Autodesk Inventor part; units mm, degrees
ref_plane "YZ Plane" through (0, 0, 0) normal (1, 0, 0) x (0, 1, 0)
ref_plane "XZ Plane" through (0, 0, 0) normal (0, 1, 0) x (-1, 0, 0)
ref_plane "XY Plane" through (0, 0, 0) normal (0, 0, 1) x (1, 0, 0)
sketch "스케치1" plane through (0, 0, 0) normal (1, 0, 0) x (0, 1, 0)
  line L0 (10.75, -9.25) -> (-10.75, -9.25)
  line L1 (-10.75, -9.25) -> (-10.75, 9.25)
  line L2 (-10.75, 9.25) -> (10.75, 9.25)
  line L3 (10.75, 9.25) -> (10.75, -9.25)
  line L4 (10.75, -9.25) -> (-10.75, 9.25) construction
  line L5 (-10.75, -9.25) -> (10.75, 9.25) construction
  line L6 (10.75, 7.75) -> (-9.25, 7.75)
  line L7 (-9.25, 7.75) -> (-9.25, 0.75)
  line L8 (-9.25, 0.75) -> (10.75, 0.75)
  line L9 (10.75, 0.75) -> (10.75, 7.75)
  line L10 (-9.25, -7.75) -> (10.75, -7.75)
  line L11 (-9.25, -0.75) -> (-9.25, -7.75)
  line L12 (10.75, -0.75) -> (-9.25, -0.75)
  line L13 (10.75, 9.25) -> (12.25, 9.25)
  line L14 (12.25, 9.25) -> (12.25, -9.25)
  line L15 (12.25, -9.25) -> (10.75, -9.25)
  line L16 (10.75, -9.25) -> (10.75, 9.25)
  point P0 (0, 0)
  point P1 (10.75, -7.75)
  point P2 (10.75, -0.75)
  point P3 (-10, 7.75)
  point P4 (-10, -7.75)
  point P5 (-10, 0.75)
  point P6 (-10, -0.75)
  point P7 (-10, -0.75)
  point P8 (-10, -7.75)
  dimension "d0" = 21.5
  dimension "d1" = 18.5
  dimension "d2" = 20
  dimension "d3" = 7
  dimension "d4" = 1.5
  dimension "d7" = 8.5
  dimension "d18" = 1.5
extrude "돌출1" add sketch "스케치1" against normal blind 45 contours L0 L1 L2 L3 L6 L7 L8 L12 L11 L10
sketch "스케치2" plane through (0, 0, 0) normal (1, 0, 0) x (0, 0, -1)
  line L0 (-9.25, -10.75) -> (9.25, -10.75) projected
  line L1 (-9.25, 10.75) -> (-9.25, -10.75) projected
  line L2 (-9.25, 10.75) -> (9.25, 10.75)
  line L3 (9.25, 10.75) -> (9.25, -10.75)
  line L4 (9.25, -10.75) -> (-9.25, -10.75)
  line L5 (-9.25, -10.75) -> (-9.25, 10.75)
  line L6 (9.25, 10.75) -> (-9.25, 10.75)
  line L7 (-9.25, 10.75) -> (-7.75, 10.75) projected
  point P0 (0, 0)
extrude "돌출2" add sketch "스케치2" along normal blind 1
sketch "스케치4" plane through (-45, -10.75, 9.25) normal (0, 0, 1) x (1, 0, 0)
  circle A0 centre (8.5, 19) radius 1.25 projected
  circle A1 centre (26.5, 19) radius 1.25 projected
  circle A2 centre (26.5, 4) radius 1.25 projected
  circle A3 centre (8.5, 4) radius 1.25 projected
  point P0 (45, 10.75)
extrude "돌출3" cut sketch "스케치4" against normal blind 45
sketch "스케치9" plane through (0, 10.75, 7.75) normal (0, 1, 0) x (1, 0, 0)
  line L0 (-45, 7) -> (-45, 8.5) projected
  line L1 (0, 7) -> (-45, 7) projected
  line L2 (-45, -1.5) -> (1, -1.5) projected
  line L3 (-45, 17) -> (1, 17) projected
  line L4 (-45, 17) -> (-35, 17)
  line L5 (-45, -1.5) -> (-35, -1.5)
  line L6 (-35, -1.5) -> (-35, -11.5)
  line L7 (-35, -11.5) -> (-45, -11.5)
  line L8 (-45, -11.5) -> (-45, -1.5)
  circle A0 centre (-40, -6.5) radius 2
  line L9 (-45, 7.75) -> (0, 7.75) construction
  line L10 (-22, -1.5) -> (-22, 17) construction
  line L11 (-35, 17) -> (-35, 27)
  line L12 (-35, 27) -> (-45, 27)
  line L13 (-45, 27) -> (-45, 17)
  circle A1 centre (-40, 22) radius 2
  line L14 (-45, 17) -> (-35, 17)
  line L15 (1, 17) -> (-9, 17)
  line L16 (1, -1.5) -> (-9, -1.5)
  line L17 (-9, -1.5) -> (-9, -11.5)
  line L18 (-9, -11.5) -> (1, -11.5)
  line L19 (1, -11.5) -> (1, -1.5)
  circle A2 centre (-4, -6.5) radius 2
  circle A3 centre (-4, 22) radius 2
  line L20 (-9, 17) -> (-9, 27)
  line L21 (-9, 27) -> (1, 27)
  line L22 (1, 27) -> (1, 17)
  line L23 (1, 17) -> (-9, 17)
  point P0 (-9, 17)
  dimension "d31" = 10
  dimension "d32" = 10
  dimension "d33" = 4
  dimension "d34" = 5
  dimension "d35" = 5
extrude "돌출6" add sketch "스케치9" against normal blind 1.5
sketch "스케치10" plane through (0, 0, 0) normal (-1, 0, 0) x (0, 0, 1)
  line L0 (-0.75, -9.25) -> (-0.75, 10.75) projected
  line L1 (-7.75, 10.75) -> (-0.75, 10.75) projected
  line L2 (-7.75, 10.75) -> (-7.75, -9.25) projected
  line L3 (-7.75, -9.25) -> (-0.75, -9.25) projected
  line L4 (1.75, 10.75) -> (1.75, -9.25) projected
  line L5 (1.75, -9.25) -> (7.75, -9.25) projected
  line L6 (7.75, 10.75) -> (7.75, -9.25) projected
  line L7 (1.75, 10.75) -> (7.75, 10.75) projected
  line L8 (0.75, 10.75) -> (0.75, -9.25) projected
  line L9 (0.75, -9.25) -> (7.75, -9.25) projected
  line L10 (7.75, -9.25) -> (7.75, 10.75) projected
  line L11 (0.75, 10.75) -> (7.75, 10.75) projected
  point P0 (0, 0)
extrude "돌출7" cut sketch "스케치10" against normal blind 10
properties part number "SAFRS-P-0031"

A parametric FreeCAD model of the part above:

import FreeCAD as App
import Part
import Sketcher
from FreeCAD import Vector

doc = App.newDocument("Part")
params = doc.addObject("Spreadsheet::Sheet", "Params")
for row, (alias, value) in enumerate([
    ("sketch1_width", "20 mm"),
    ("sketch1_height", "7 mm"),
    ("sketch1_width2", "21.5 mm"),
    ("sketch1_height2", "1.5 mm"),
    ("pad1_length", "45 mm"),
    ("sketch2_width", "21.5 mm"),
    ("sketch2_height", "18.5 mm"),
    ("pad2_length", "1 mm"),
    ("sketch3_diameter", "2.5 mm"),
    ("pocket1_length", "45 mm"),
    ("sketch4_diameter", "4 mm"),
    ("sketch4_width", "10 mm"),
    ("pad3_length", "1.5 mm"),
    ("sketch5_width", "20 mm"),
    ("sketch5_height", "7 mm"),
    ("pocket2_length", "10 mm"),
], start=1):
    params.set(f"A{row}", alias)
    params.set(f"B{row}", "=" + value)
    params.setAlias(f"B{row}", alias)

body = doc.addObject("PartDesign::Body", "Body")

sketch1 = body.newObject("Sketcher::SketchObject", "Sketch")
sketch1.AttachmentSupport = (doc.getObject("YZ_Plane"), [""])
sketch1.MapMode = "FlatFace"
sketch1.addGeometry([
    Part.LineSegment(Vector(-10.8, -9.2, 0), Vector(10.8, -9.2, 0)),
    Part.LineSegment(Vector(10.8, -9.2, 0), Vector(10.8, -7.8, 0)),
    Part.LineSegment(Vector(10.8, -7.8, 0), Vector(-9.2, -7.8, 0)),
    Part.LineSegment(Vector(-9.2, -7.8, 0), Vector(-9.2, -0.8, 0)),
    Part.LineSegment(Vector(-9.2, -0.8, 0), Vector(10.8, -0.8, 0)),
    Part.LineSegment(Vector(10.8, -0.8, 0), Vector(10.8, 0.8, 0)),
    Part.LineSegment(Vector(10.8, 0.8, 0), Vector(-9.2, 0.8, 0)),
    Part.LineSegment(Vector(-9.2, 0.8, 0), Vector(-9.2, 7.8, 0)),
    Part.LineSegment(Vector(-9.2, 7.8, 0), Vector(10.8, 7.8, 0)),
    Part.LineSegment(Vector(10.8, 7.8, 0), Vector(10.8, 9.2, 0)),
    Part.LineSegment(Vector(10.8, 9.2, 0), Vector(-10.8, 9.2, 0)),
    Part.LineSegment(Vector(-10.8, 9.2, 0), Vector(-10.8, -9.2, 0)),
], False)
sketch1.addConstraint([
    Sketcher.Constraint("Coincident", 0, 2, 1, 1),
    Sketcher.Constraint("Coincident", 1, 2, 2, 1),
    Sketcher.Constraint("Coincident", 2, 2, 3, 1),
    Sketcher.Constraint("Coincident", 3, 2, 4, 1),
    Sketcher.Constraint("Coincident", 4, 2, 5, 1),
    Sketcher.Constraint("Coincident", 5, 2, 6, 1),
    Sketcher.Constraint("Coincident", 6, 2, 7, 1),
    Sketcher.Constraint("Coincident", 7, 2, 8, 1),
    Sketcher.Constraint("Coincident", 8, 2, 9, 1),
    Sketcher.Constraint("Coincident", 9, 2, 10, 1),
    Sketcher.Constraint("Coincident", 10, 2, 11, 1),
    Sketcher.Constraint("Coincident", 11, 2, 0, 1),
    Sketcher.Constraint("Horizontal", 0),
    Sketcher.Constraint("Vertical", 1),
    Sketcher.Constraint("Horizontal", 2),
    Sketcher.Constraint("Vertical", 3),
    Sketcher.Constraint("Horizontal", 4),
    Sketcher.Constraint("Vertical", 5),
    Sketcher.Constraint("Horizontal", 6),
    Sketcher.Constraint("Vertical", 7),
    Sketcher.Constraint("Horizontal", 8),
    Sketcher.Constraint("Vertical", 9),
    Sketcher.Constraint("Horizontal", 10),
    Sketcher.Constraint("Vertical", 11),
    Sketcher.Constraint("Symmetric", 0, 2, 10, 2, -1, 1),
    Sketcher.Constraint("Symmetric", 3, 2, 6, 2, -1),
    Sketcher.Constraint("Symmetric", 1, 2, 8, 2, -1),
    Sketcher.Constraint("Vertical", 1, 2, 4, 2),
    Sketcher.Constraint("Equal", 1, 5),
    Sketcher.Constraint("DistanceX", 2, 2, 2, 1, 20.0),
    Sketcher.Constraint("DistanceY", 3, 1, 3, 2, 7.0),
    Sketcher.Constraint("DistanceX", 0, 1, 0, 2, 21.5),
    Sketcher.Constraint("DistanceY", 1, 1, 1, 2, 1.5),
])
sketch1.setExpression("Constraints[29]", "Params.sketch1_width")
sketch1.setExpression("Constraints[30]", "Params.sketch1_height")
sketch1.setExpression("Constraints[31]", "Params.sketch1_width2")
sketch1.setExpression("Constraints[32]", "Params.sketch1_height2")
pad1 = body.newObject("PartDesign::Pad", "Pad")
pad1.Profile = sketch1
pad1.setExpression("Length", "Params.pad1_length")
pad1.Reversed = True

sketch2 = body.newObject("Sketcher::SketchObject", "Sketch001")
sketch2.AttachmentSupport = (doc.getObject("YZ_Plane"), [""])
sketch2.MapMode = "FlatFace"
sketch2.addGeometry([
    Part.LineSegment(Vector(11, 9, 0), Vector(-11, 9, 0)),
    Part.LineSegment(Vector(-11, 9, 0), Vector(-11, -9, 0)),
    Part.LineSegment(Vector(-11, -9, 0), Vector(11, -9, 0)),
    Part.LineSegment(Vector(11, -9, 0), Vector(11, 9, 0)),
], False)
sketch2.addConstraint([
    Sketcher.Constraint("Coincident", 0, 2, 1, 1),
    Sketcher.Constraint("Coincident", 1, 2, 2, 1),
    Sketcher.Constraint("Coincident", 2, 2, 3, 1),
    Sketcher.Constraint("Coincident", 3, 2, 0, 1),
    Sketcher.Constraint("Horizontal", 0),
    Sketcher.Constraint("Vertical", 1),
    Sketcher.Constraint("Horizontal", 2),
    Sketcher.Constraint("Vertical", 3),
    Sketcher.Constraint("Symmetric", 0, 2, 2, 2, -1, 1),
    Sketcher.Constraint("DistanceX", 0, 2, 0, 1, 21.5),
    Sketcher.Constraint("DistanceY", 1, 2, 1, 1, 18.5),
])
sketch2.setExpression("Constraints[9]", "Params.sketch2_width")
sketch2.setExpression("Constraints[10]", "Params.sketch2_height")
pad2 = body.newObject("PartDesign::Pad", "Pad001")
pad2.Profile = sketch2
pad2.setExpression("Length", "Params.pad2_length")

sketch3 = body.newObject("Sketcher::SketchObject", "Sketch002")
sketch3.AttachmentSupport = (doc.getObject("XY_Plane"), [""])
sketch3.MapMode = "FlatFace"
sketch3.AttachmentOffset = App.Placement(Vector(0, 0, 9.25), App.Rotation())
sketch3.addGeometry([
    Part.Circle(Vector(-36.5, 8.2, 0), Vector(0, 0, 1), 1.2),
    Part.Circle(Vector(-18.5, 8.2, 0), Vector(0, 0, 1), 1.2),
    Part.Circle(Vector(-18.5, -6.8, 0), Vector(0, 0, 1), 1.2),
    Part.Circle(Vector(-36.5, -6.8, 0), Vector(0, 0, 1), 1.2),
], False)
sketch3.addConstraint([
    Sketcher.Constraint("Equal", 0, 1),
    Sketcher.Constraint("Equal", 1, 2),
    Sketcher.Constraint("Equal", 2, 3),
    Sketcher.Constraint("Horizontal", 0, 3, 1, 3),
    Sketcher.Constraint("Horizontal", 2, 3, 3, 3),
    Sketcher.Constraint("Vertical", 1, 3, 2, 3),
    Sketcher.Constraint("Vertical", 0, 3, 3, 3),
    Sketcher.Constraint("Diameter", 0, 2.5),
    Sketcher.Constraint("DistanceX", 0, 3, 1, 3, 18.0),
    Sketcher.Constraint("DistanceY", 2, 3, 1, 3, 15.0),
    Sketcher.Constraint("DistanceX", 0, 3, -1, 1, 36.5),
    Sketcher.Constraint("DistanceY", -1, 1, 0, 3, 8.25),
])
sketch3.setExpression("Constraints[7]", "Params.sketch3_diameter")
pocket1 = body.newObject("PartDesign::Pocket", "Pocket")
pocket1.Profile = sketch3
pocket1.setExpression("Length", "Params.pocket1_length")

sketch4 = body.newObject("Sketcher::SketchObject", "Sketch003")
sketch4.AttachmentSupport = (doc.getObject("XZ_Plane"), [""])
sketch4.MapMode = "FlatFace"
sketch4.AttachmentOffset = App.Placement(Vector(0, 0, -10.75), App.Rotation())
sketch4.addGeometry([
    Part.LineSegment(Vector(1, 9.2, 0), Vector(-9, 9.2, 0)),
    Part.LineSegment(Vector(-9, 9.2, 0), Vector(-9, 19.2, 0)),
    Part.LineSegment(Vector(-9, 19.2, 0), Vector(1, 19.2, 0)),
    Part.LineSegment(Vector(1, 19.2, 0), Vector(1, 9.2, 0)),
    Part.Circle(Vector(-4, 14.2, 0), Vector(0, 0, 1), 2),
    Part.LineSegment(Vector(-35, 9.2, 0), Vector(-45, 9.2, 0)),
    Part.LineSegment(Vector(-45, 9.2, 0), Vector(-45, 19.2, 0)),
    Part.LineSegment(Vector(-45, 19.2, 0), Vector(-35, 19.2, 0)),
    Part.LineSegment(Vector(-35, 19.2, 0), Vector(-35, 9.2, 0)),
    Part.Circle(Vector(-40, 14.2, 0), Vector(0, 0, 1), 2),
    Part.LineSegment(Vector(-45, -19.2, 0), Vector(-45, -9.2, 0)),
    Part.LineSegment(Vector(-45, -9.2, 0), Vector(-35, -9.2, 0)),
    Part.LineSegment(Vector(-35, -9.2, 0), Vector(-35, -19.2, 0)),
    Part.LineSegment(Vector(-35, -19.2, 0), Vector(-45, -19.2, 0)),
    Part.Circle(Vector(-40, -14.2, 0), Vector(0, 0, 1), 2),
    Part.LineSegment(Vector(-9, -19.2, 0), Vector(-9, -9.2, 0)),
    Part.LineSegment(Vector(-9, -9.2, 0), Vector(1, -9.2, 0)),
    Part.LineSegment(Vector(1, -9.2, 0), Vector(1, -19.2, 0)),
    Part.LineSegment(Vector(1, -19.2, 0), Vector(-9, -19.2, 0)),
    Part.Circle(Vector(-4, -14.2, 0), Vector(0, 0, 1), 2),
], False)
sketch4.addConstraint([
    Sketcher.Constraint("Coincident", 0, 2, 1, 1),
    Sketcher.Constraint("Coincident", 1, 2, 2, 1),
    Sketcher.Constraint("Coincident", 2, 2, 3, 1),
    Sketcher.Constraint("Coincident", 3, 2, 0, 1),
    Sketcher.Constraint("Coincident", 5, 2, 6, 1),
    Sketcher.Constraint("Coincident", 6, 2, 7, 1),
    Sketcher.Constraint("Coincident", 7, 2, 8, 1),
    Sketcher.Constraint("Coincident", 8, 2, 5, 1),
    Sketcher.Constraint("Coincident", 10, 2, 11, 1),
    Sketcher.Constraint("Coincident", 11, 2, 12, 1),
    Sketcher.Constraint("Coincident", 12, 2, 13, 1),
    Sketcher.Constraint("Coincident", 13, 2, 10, 1),
    Sketcher.Constraint("Coincident", 15, 2, 16, 1),
    Sketcher.Constraint("Coincident", 16, 2, 17, 1),
    Sketcher.Constraint("Coincident", 17, 2, 18, 1),
    Sketcher.Constraint("Coincident", 18, 2, 15, 1),
    Sketcher.Constraint("Horizontal", 0),
    Sketcher.Constraint("Vertical", 1),
    Sketcher.Constraint("Horizontal", 2),
    Sketcher.Constraint("Vertical", 3),
    Sketcher.Constraint("Horizontal", 5),
    Sketcher.Constraint("Vertical", 6),
    Sketcher.Constraint("Horizontal", 7),
    Sketcher.Constraint("Vertical", 8),
    Sketcher.Constraint("Vertical", 10),
    Sketcher.Constraint("Horizontal", 11),
    Sketcher.Constraint("Vertical", 12),
    Sketcher.Constraint("Horizontal", 13),
    Sketcher.Constraint("Vertical", 15),
    Sketcher.Constraint("Horizontal", 16),
    Sketcher.Constraint("Vertical", 17),
    Sketcher.Constraint("Horizontal", 18),
    Sketcher.Constraint("Equal", 4, 9),
    Sketcher.Constraint("Equal", 9, 14),
    Sketcher.Constraint("Equal", 14, 19),
    Sketcher.Constraint("Symmetric", 9, 3, 14, 3, -1),
    Sketcher.Constraint("Symmetric", 4, 3, 19, 3, -1),
    Sketcher.Constraint("Symmetric", 5, 2, 10, 2, -1),
    Sketcher.Constraint("Symmetric", 7, 2, 12, 2, -1),
    Sketcher.Constraint("Symmetric", 0, 2, 15, 2, -1),
    Sketcher.Constraint("Symmetric", 2, 2, 17, 2, -1),
    Sketcher.Constraint("Horizontal", 4, 3, 9, 3),
    Sketcher.Constraint("Horizontal", 3, 2, 5, 2),
    Sketcher.Constraint("Horizontal", 2, 2, 6, 2),
    Sketcher.Constraint("Equal", 2, 5),
    Sketcher.Constraint("Equal", 18, 1),
    Sketcher.Constraint("Diameter", 4, 4.0),
    Sketcher.Constraint("DistanceX", 0, 2, 0, 1, 10.0),
    Sketcher.Constraint("DistanceX", 4, 3, -1, 1, 4.0),
    Sketcher.Constraint("DistanceX", 0, 2, 4, 3, 5.0),
    Sketcher.Constraint("DistanceY", 0, 2, 4, 3, 5.0),
    Sketcher.Constraint("DistanceX", 5, 2, 9, 3, 5.0),
    Sketcher.Constraint("DistanceX", 9, 3, -1, 1, 40.0),
    Sketcher.Constraint("DistanceY", 14, 3, 9, 3, 28.5),
])
sketch4.setExpression("Constraints[46]", "Params.sketch4_diameter")
sketch4.setExpression("Constraints[47]", "Params.sketch4_width")
pad3 = body.newObject("PartDesign::Pad", "Pad002")
pad3.Profile = sketch4
pad3.setExpression("Length", "Params.pad3_length")

sketch5 = body.newObject("Sketcher::SketchObject", "Sketch004")
sketch5.AttachmentSupport = (doc.getObject("YZ_Plane"), [""])
sketch5.MapMode = "FlatFace"
sketch5.addGeometry([
    Part.LineSegment(Vector(-9, -8, 0), Vector(-9, -1, 0)),
    Part.LineSegment(Vector(-9, -1, 0), Vector(11, -1, 0)),
    Part.LineSegment(Vector(11, -1, 0), Vector(11, -8, 0)),
    Part.LineSegment(Vector(11, -8, 0), Vector(-9, -8, 0)),
    Part.LineSegment(Vector(11, 8, 0), Vector(11, 1, 0)),
    Part.LineSegment(Vector(11, 1, 0), Vector(-9, 1, 0)),
    Part.LineSegment(Vector(-9, 1, 0), Vector(-9, 8, 0)),
    Part.LineSegment(Vector(-9, 8, 0), Vector(11, 8, 0)),
], False)
sketch5.addConstraint([
    Sketcher.Constraint("Coincident", 0, 2, 1, 1),
    Sketcher.Constraint("Coincident", 1, 2, 2, 1),
    Sketcher.Constraint("Coincident", 2, 2, 3, 1),
    Sketcher.Constraint("Coincident", 3, 2, 0, 1),
    Sketcher.Constraint("Coincident", 4, 2, 5, 1),
    Sketcher.Constraint("Coincident", 5, 2, 6, 1),
    Sketcher.Constraint("Coincident", 6, 2, 7, 1),
    Sketcher.Constraint("Coincident", 7, 2, 4, 1),
    Sketcher.Constraint("Vertical", 0),
    Sketcher.Constraint("Horizontal", 1),
    Sketcher.Constraint("Vertical", 2),
    Sketcher.Constraint("Horizontal", 3),
    Sketcher.Constraint("Vertical", 4),
    Sketcher.Constraint("Horizontal", 5),
    Sketcher.Constraint("Vertical", 6),
    Sketcher.Constraint("Horizontal", 7),
    Sketcher.Constraint("Symmetric", 1, 2, 4, 2, -1),
    Sketcher.Constraint("Symmetric", 3, 2, 6, 2, -1),
    Sketcher.Constraint("DistanceX", 1, 1, 1, 2, 20.0),
    Sketcher.Constraint("DistanceY", 0, 1, 0, 2, 7.0),
    Sketcher.Constraint("DistanceY", 1, 2, 4, 2, 1.5),
    Sketcher.Constraint("DistanceX", 0, 2, -1, 1, 9.25),
])
sketch5.setExpression("Constraints[18]", "Params.sketch5_width")
sketch5.setExpression("Constraints[19]", "Params.sketch5_height")
pocket2 = body.newObject("PartDesign::Pocket", "Pocket001")
pocket2.Profile = sketch5
pocket2.setExpression("Length", "Params.pocket2_length")
pocket2.Reversed = True

doc.recompute()
